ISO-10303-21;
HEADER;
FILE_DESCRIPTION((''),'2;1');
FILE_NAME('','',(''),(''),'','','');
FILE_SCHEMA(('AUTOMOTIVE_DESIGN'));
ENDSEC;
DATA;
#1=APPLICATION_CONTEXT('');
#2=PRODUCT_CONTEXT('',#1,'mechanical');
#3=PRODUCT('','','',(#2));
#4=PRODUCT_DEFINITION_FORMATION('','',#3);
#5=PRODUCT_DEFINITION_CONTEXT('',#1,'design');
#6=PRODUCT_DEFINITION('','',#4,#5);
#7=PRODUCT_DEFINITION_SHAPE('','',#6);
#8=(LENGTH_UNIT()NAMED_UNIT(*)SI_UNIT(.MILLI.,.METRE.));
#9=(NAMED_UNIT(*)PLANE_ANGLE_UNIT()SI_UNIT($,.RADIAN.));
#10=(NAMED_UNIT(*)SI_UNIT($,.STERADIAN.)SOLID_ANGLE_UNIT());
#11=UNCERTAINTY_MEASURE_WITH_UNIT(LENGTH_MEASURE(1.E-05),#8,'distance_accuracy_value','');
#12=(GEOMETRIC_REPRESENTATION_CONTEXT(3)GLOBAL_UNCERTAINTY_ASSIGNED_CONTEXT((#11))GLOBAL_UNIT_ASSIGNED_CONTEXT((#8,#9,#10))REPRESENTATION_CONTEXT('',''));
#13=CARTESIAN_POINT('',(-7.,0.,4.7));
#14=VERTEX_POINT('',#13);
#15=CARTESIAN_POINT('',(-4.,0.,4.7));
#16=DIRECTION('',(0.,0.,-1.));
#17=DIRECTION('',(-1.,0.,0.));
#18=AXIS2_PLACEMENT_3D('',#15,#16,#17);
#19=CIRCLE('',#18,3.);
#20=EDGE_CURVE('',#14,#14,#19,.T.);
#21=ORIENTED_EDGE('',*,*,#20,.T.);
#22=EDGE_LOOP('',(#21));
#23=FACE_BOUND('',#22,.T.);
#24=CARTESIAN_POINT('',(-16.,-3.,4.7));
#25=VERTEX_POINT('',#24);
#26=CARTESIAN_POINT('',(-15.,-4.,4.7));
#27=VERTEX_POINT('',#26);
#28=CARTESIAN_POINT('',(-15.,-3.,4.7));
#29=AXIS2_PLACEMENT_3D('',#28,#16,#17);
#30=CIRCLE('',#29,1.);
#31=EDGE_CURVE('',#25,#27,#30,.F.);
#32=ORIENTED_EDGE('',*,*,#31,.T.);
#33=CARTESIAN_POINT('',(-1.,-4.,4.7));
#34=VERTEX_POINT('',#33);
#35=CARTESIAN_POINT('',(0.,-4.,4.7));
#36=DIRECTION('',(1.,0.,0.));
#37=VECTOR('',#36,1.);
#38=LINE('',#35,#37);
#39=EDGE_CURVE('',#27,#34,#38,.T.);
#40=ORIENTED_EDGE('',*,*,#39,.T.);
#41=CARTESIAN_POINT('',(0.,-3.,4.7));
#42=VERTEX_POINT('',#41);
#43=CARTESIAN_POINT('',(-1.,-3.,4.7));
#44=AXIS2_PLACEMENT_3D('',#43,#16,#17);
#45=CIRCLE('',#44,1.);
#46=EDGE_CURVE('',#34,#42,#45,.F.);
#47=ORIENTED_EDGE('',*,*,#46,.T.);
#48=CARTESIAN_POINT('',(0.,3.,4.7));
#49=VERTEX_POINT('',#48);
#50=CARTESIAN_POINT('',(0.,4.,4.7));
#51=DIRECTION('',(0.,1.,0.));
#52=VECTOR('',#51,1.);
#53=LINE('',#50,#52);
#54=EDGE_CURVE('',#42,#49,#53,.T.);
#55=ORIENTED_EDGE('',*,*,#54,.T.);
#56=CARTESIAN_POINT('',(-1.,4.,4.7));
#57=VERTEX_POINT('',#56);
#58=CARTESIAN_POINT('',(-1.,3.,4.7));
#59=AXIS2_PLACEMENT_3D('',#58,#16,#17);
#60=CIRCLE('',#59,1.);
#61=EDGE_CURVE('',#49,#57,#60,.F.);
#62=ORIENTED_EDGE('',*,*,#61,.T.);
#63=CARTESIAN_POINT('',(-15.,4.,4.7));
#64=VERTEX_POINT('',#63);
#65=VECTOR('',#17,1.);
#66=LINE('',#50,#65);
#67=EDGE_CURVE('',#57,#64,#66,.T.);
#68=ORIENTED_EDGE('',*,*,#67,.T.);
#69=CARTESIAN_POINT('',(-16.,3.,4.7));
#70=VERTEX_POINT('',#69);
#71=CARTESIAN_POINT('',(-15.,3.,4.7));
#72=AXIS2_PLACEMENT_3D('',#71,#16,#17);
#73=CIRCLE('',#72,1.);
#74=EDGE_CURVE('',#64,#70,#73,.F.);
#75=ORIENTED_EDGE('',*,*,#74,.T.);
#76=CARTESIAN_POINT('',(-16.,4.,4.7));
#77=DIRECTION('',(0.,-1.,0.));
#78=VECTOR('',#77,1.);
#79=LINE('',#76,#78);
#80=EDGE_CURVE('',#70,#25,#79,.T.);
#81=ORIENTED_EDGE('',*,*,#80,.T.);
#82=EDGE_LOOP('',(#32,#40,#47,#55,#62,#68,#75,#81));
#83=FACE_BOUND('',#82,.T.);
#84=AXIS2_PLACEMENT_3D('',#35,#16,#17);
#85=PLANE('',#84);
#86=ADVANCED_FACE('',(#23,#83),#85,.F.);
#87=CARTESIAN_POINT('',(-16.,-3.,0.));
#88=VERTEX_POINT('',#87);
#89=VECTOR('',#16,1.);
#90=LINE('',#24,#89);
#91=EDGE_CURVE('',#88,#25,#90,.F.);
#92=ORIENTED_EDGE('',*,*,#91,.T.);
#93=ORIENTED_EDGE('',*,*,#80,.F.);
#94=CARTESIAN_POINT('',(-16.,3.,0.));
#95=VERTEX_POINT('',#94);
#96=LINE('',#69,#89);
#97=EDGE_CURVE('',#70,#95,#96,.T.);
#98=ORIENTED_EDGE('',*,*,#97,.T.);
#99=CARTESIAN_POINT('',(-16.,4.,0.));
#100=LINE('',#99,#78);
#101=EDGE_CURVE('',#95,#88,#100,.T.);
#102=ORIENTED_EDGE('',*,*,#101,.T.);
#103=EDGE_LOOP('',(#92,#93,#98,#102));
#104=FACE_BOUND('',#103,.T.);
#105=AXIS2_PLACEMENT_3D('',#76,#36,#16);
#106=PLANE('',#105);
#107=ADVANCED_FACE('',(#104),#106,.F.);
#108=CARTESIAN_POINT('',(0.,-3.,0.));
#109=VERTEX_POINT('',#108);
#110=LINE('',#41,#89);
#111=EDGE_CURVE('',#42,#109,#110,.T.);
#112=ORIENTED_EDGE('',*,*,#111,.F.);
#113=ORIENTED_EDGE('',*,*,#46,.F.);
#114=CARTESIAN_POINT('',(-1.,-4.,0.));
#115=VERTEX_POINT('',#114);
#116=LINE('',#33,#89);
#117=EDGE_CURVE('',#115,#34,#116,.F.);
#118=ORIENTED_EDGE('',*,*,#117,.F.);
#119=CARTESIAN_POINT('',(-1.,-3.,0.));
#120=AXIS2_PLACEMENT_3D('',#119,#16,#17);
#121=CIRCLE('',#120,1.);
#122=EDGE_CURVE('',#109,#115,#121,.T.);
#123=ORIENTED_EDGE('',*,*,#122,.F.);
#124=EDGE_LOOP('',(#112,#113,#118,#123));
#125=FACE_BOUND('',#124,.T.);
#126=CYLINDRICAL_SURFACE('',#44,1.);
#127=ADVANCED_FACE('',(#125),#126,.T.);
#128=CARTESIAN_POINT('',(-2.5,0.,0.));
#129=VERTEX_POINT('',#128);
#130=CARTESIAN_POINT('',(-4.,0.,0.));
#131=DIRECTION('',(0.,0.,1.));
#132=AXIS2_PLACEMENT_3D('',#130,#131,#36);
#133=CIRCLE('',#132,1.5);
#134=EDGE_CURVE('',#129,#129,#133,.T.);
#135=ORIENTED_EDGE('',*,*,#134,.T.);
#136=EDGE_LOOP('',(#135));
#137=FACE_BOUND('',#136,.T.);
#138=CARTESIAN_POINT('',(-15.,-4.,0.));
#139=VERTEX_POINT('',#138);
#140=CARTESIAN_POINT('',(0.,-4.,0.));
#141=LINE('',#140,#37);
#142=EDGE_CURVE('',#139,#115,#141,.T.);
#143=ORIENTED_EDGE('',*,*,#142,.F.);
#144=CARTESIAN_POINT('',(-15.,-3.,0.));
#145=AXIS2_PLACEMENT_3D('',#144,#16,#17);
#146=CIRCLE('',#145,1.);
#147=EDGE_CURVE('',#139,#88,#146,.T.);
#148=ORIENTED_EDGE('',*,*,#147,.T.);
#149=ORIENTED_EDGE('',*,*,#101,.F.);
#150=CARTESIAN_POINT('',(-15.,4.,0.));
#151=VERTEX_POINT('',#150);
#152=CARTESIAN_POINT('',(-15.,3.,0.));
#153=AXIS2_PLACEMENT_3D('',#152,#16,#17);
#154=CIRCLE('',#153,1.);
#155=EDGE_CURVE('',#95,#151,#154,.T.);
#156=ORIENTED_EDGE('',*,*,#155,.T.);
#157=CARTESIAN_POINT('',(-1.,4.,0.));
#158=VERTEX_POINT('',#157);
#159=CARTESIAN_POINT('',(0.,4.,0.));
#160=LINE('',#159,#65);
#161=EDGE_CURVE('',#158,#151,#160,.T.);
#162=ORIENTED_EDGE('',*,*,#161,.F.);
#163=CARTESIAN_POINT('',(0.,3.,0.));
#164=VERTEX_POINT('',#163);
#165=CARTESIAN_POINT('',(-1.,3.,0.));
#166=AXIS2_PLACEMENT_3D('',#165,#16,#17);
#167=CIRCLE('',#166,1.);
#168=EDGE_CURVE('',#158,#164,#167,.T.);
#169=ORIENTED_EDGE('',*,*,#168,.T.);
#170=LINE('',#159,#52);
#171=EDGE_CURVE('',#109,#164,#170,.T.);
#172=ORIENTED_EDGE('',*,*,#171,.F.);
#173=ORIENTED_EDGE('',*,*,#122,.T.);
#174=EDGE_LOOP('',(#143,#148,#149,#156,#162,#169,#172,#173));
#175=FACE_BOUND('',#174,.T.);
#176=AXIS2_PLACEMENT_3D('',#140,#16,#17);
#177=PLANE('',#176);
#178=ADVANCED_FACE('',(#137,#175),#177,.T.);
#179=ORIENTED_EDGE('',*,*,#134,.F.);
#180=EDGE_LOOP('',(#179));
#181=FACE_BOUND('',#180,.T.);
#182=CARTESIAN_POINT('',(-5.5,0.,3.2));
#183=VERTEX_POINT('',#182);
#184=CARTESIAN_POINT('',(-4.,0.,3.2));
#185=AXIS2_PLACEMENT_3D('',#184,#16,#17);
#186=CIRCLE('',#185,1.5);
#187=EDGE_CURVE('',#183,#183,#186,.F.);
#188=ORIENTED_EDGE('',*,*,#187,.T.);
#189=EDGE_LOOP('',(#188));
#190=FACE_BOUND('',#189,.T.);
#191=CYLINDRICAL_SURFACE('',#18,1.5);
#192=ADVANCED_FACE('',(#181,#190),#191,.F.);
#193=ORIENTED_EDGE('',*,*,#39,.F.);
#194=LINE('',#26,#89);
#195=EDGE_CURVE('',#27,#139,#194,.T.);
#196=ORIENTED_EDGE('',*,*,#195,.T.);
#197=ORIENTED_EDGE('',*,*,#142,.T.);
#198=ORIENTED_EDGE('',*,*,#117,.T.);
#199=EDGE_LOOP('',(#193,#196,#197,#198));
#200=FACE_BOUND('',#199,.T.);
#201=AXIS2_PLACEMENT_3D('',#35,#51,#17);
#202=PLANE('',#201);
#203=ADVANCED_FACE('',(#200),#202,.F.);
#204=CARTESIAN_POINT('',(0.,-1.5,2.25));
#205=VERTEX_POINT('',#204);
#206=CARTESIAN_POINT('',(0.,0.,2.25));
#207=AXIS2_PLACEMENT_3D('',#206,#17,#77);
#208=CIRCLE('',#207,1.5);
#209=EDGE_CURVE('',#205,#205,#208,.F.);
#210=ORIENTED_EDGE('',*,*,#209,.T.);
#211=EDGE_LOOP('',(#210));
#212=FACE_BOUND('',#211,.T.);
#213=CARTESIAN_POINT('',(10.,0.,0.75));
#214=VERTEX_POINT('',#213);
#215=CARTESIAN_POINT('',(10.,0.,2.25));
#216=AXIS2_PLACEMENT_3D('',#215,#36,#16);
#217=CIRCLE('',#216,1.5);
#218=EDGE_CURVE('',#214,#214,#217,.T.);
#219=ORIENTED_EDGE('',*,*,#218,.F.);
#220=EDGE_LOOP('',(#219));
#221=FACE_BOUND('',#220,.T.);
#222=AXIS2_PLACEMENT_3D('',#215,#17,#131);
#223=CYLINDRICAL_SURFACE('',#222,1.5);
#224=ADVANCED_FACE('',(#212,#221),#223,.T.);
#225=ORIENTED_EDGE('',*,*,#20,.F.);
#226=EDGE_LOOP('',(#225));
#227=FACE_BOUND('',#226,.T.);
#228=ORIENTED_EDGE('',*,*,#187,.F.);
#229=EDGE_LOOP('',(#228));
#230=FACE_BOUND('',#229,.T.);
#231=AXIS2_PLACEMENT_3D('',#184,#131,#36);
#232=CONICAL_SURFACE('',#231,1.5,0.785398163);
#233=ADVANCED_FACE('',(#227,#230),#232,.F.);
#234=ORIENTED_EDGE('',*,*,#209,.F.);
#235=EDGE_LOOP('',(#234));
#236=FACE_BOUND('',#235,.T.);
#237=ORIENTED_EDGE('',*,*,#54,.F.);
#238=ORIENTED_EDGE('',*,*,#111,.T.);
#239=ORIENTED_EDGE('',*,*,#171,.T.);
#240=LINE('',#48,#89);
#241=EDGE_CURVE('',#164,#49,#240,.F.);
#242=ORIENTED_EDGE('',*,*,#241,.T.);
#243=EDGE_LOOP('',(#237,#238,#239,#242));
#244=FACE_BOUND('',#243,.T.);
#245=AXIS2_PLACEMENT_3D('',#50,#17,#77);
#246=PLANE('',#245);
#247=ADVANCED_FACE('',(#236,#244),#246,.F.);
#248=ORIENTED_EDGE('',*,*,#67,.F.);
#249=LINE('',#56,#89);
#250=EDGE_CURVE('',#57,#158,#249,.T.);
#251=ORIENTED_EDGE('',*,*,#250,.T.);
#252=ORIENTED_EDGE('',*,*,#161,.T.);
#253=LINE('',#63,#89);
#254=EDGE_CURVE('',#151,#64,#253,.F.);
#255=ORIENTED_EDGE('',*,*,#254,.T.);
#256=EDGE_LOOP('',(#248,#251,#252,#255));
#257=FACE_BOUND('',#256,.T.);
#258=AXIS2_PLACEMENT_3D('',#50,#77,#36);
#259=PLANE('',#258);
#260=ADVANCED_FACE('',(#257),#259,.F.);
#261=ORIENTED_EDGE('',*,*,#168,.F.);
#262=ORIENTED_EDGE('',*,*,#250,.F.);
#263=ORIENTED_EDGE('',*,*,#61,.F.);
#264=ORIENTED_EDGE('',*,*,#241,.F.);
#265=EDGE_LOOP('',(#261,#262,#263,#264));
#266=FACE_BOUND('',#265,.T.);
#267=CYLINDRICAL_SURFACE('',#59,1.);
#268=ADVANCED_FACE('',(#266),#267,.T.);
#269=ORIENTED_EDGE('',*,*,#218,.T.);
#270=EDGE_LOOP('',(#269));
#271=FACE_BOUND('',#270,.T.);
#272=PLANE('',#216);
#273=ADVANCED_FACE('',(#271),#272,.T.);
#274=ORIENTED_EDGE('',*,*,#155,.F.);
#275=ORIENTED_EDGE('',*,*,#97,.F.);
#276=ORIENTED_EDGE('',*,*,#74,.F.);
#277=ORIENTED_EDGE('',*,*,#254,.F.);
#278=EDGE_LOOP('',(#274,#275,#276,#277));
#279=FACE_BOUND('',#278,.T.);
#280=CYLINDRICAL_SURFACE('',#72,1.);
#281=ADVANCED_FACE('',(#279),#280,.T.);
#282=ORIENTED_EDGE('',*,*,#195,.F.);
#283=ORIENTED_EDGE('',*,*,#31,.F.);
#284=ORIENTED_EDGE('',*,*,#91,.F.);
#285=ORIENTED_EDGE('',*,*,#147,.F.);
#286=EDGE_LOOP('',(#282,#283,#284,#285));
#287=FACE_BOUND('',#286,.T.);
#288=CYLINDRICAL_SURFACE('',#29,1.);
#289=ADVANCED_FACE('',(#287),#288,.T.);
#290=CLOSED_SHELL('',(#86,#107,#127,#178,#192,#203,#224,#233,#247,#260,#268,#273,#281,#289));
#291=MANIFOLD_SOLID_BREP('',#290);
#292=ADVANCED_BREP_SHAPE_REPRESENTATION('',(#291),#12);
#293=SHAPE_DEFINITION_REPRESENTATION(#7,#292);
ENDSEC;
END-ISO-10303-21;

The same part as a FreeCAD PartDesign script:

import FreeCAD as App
import Part
import Sketcher
from FreeCAD import Vector


def edges_at(feature, points):
    """Names of the edges that pass closest to the given points."""
    edges = feature.Shape.Edges
    near = lambda p: min(range(len(edges)), key=lambda i: edges[i].distToShape(Part.Vertex(*p))[0])
    return sorted({f"Edge{near(p) + 1}" for p in points})


def add_polygon(sketch, points):
    """Adds a closed chain of lines whose ends are joined by coincident constraints."""
    first, n = sketch.GeometryCount, len(points)
    for a, b in zip(points, points[1:] + points[:1]):
        sketch.addGeometry(Part.LineSegment(App.Vector(*a, 0), App.Vector(*b, 0)), False)
    for i in range(n):
        sketch.addConstraint(Sketcher.Constraint("Coincident", first + i, 2, first + (i + 1) % n, 1))

doc = App.newDocument("Part")
body = doc.addObject("PartDesign::Body", "Body")

sketch1 = body.newObject("Sketcher::SketchObject", "Sketch")
sketch1.AttachmentSupport = (doc.getObject("XY_Plane"), [""])
sketch1.MapMode = "FlatFace"
add_polygon(sketch1, [(-16, 4), (-16, -4), (0, -4), (0, 4)])
sketch1.addGeometry(Part.Circle(Vector(-4, 0, 0), Vector(0, 0, 1), 1.5), False)
sketch1.addConstraint([
    Sketcher.Constraint("Vertical", 0),
    Sketcher.Constraint("Horizontal", 1),
    Sketcher.Constraint("Vertical", 2),
    Sketcher.Constraint("Horizontal", 3),
    Sketcher.Constraint("Symmetric", 1, 2, 2, 2, -1, 1),
    Sketcher.Constraint("PointOnObject", 4, 3, -1),
    Sketcher.Constraint("Diameter", 4, 3.0),
    Sketcher.Constraint("DistanceX", 1, 1, 1, 2, 16.0),
    Sketcher.Constraint("DistanceY", 0, 2, 0, 1, 8.0),
    Sketcher.Constraint("DistanceX", 4, 3, -1, 1, 4.0),
])
pad1 = body.newObject("PartDesign::Pad", "Pad")
pad1.Profile = sketch1
pad1.Length = 4.7
doc.recompute()

fillet = body.newObject("PartDesign::Fillet", "Fillet")
fillet.Base = (pad1, edges_at(pad1, [
    (0, -4, 2.35),
    (-16, -4, 2.35),
    (-16, 4, 2.35),
    (0, 4, 2.35),
]))
fillet.Radius = 1
doc.recompute()

chamfer = body.newObject("PartDesign::Chamfer", "Chamfer")
chamfer.Base = (fillet, edges_at(fillet, [(-5.5, 0, 4.7)]))
chamfer.Size = 1.5

sketch2 = body.newObject("Sketcher::SketchObject", "Sketch001")
sketch2.AttachmentSupport = (doc.getObject("YZ_Plane"), [""])
sketch2.MapMode = "FlatFace"
sketch2.addGeometry(Part.Circle(Vector(0, 2.2, 0), Vector(0, 0, 1), 1.5), False)
sketch2.addConstraint([
    Sketcher.Constraint("PointOnObject", 0, 3, -2),
    Sketcher.Constraint("Diameter", 0, 3.0),
    Sketcher.Constraint("DistanceY", -1, 1, 0, 3, 2.25),
])
pad2 = body.newObject("PartDesign::Pad", "Pad001")
pad2.Profile = sketch2
pad2.Length = 10

doc.recompute()
